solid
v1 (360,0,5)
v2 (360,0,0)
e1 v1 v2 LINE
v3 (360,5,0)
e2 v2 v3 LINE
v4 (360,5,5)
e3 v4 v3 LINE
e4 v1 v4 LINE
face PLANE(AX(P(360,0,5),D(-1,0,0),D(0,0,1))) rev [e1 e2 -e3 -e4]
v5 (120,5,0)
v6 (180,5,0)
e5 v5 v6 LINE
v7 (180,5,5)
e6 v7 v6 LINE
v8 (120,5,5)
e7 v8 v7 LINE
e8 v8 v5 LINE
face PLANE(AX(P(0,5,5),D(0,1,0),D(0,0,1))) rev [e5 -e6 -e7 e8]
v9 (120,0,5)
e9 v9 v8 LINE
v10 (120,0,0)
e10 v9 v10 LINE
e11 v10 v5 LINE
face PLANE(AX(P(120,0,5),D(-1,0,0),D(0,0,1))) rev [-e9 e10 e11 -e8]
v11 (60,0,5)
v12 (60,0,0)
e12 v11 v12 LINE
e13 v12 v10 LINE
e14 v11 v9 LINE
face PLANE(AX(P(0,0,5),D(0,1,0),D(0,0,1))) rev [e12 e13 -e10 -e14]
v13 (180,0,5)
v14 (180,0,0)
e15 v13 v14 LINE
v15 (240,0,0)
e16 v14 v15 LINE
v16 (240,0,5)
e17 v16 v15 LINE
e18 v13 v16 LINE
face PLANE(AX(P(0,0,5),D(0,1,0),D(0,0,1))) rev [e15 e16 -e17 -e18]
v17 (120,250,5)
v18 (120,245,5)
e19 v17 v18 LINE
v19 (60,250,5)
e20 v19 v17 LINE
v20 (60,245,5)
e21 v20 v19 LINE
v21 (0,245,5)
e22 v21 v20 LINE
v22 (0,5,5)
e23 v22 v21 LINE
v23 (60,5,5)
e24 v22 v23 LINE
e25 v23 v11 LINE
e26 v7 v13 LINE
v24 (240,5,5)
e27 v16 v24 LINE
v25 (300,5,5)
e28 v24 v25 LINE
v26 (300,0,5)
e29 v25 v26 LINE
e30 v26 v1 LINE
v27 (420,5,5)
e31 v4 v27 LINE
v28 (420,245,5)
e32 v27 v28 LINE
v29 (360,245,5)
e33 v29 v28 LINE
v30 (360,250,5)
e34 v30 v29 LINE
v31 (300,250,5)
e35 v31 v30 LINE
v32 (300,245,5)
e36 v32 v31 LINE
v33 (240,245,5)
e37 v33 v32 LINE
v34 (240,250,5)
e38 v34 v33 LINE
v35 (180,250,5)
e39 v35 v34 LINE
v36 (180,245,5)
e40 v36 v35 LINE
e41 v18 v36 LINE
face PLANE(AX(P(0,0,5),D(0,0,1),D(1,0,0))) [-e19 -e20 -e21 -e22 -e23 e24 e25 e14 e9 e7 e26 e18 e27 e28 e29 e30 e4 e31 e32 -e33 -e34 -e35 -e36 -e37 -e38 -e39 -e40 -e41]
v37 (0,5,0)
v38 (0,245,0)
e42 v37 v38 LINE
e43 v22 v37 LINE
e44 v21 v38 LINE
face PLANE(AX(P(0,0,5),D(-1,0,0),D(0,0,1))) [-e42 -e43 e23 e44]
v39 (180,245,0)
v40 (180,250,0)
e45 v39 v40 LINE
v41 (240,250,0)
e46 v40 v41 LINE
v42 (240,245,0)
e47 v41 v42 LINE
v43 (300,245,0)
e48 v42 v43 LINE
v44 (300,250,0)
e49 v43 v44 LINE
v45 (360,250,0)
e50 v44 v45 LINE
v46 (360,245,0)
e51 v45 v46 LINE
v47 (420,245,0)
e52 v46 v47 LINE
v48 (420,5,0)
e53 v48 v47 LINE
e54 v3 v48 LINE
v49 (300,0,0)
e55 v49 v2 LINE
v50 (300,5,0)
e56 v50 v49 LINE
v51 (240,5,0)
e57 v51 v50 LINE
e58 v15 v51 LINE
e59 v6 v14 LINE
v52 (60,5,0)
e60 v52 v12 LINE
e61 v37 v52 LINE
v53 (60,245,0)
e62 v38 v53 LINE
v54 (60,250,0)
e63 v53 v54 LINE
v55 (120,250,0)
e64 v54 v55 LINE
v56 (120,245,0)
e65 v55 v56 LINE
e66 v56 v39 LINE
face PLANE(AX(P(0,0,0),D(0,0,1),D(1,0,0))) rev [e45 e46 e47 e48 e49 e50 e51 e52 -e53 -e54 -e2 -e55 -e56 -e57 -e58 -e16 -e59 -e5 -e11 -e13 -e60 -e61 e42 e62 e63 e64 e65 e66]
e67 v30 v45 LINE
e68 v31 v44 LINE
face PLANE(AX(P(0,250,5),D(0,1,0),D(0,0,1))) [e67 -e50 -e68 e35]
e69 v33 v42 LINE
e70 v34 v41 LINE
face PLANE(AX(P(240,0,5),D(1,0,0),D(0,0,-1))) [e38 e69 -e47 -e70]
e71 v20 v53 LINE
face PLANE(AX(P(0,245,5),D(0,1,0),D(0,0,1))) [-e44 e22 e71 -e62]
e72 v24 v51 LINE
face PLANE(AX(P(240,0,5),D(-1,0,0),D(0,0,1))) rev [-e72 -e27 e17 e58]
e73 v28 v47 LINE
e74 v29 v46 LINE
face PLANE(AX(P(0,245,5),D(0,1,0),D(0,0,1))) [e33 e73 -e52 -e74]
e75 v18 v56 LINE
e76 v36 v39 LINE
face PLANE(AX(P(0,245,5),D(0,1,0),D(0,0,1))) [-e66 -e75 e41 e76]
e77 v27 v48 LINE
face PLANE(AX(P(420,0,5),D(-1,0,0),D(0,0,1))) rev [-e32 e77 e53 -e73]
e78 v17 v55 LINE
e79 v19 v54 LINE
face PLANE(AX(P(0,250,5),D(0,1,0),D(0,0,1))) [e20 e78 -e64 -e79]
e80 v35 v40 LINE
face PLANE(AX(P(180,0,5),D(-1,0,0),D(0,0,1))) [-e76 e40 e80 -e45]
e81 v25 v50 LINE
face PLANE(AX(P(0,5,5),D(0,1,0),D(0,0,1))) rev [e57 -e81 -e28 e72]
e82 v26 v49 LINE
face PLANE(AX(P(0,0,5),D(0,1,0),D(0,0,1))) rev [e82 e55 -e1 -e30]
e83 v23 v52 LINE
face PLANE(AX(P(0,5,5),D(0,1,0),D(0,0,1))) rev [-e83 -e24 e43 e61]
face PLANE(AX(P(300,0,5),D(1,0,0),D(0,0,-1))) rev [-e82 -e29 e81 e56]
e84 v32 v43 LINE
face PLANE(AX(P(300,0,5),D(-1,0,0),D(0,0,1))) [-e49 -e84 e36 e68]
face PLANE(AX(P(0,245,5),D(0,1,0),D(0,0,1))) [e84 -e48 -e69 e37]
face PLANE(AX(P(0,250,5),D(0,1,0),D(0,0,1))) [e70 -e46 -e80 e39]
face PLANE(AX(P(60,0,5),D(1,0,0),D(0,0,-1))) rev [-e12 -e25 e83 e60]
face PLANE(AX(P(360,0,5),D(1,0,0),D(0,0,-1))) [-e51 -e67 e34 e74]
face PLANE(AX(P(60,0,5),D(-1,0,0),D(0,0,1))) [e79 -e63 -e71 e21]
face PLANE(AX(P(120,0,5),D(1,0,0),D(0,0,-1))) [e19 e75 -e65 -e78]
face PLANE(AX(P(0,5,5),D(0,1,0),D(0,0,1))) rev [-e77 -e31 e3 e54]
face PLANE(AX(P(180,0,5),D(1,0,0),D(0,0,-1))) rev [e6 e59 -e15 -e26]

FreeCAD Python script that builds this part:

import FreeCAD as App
import Part
import Sketcher
Q = App.Units.Quantity


def add_polygon(sketch, points):
    """Adds a closed chain of lines whose ends are joined by coincident constraints."""
    first, n = sketch.GeometryCount, len(points)
    for a, b in zip(points, points[1:] + points[:1]):
        sketch.addGeometry(Part.LineSegment(App.Vector(*a, 0), App.Vector(*b, 0)), False)
    for i in range(n):
        sketch.addConstraint(Sketcher.Constraint("Coincident", first + i, 2, first + (i + 1) % n, 1))

doc = App.newDocument("Part")
body = doc.addObject("PartDesign::Body", "Body")

# Sketch on XY plane
sketch1 = body.newObject("Sketcher::SketchObject", "Sketch")
sketch1.AttachmentSupport = (doc.getObject("XY_Plane"), [""])
sketch1.MapMode = "FlatFace"
add_polygon(sketch1, [(360, 0), (360, 5), (420, 5), (420, 245), (360, 245), (360, 250), (300, 250), (300, 245), (240, 245), (240, 250), (180, 250), (180, 245), (120, 245), (120, 250), (60, 250), (60, 245), (0, 245), (0, 5), (60, 5), (60, 0), (120, 0), (120, 5), (180, 5), (180, 0), (240, 0), (240, 5), (300, 5), (300, 0)])  # lines 0-27
sketch1.addConstraint(Sketcher.Constraint("Vertical", 0))
sketch1.addConstraint(Sketcher.Constraint("Horizontal", 1))
sketch1.addConstraint(Sketcher.Constraint("Vertical", 2))
sketch1.addConstraint(Sketcher.Constraint("Horizontal", 3))
sketch1.addConstraint(Sketcher.Constraint("Vertical", 4))
sketch1.addConstraint(Sketcher.Constraint("Horizontal", 5))
sketch1.addConstraint(Sketcher.Constraint("Vertical", 6))
sketch1.addConstraint(Sketcher.Constraint("Horizontal", 7))
sketch1.addConstraint(Sketcher.Constraint("Vertical", 8))
sketch1.addConstraint(Sketcher.Constraint("Horizontal", 9))
sketch1.addConstraint(Sketcher.Constraint("Vertical", 10))
sketch1.addConstraint(Sketcher.Constraint("Horizontal", 11))
sketch1.addConstraint(Sketcher.Constraint("Vertical", 12))
sketch1.addConstraint(Sketcher.Constraint("Horizontal", 13))
sketch1.addConstraint(Sketcher.Constraint("Vertical", 14))
sketch1.addConstraint(Sketcher.Constraint("Horizontal", 15))
sketch1.addConstraint(Sketcher.Constraint("Vertical", 16))
sketch1.addConstraint(Sketcher.Constraint("Horizontal", 17))
sketch1.addConstraint(Sketcher.Constraint("Vertical", 18))
sketch1.addConstraint(Sketcher.Constraint("Horizontal", 19))
sketch1.addConstraint(Sketcher.Constraint("Vertical", 20))
sketch1.addConstraint(Sketcher.Constraint("Horizontal", 21))
sketch1.addConstraint(Sketcher.Constraint("Vertical", 22))
sketch1.addConstraint(Sketcher.Constraint("Horizontal", 23))
sketch1.addConstraint(Sketcher.Constraint("Vertical", 24))
sketch1.addConstraint(Sketcher.Constraint("Horizontal", 25))
sketch1.addConstraint(Sketcher.Constraint("Vertical", 26))
sketch1.addConstraint(Sketcher.Constraint("Horizontal", 27))
sketch1.addConstraint(Sketcher.Constraint("PointOnObject", 15, 2, -2))
sketch1.addConstraint(Sketcher.Constraint("PointOnObject", 18, 2, -1))
sketch1.addConstraint(Sketcher.Constraint("PointOnObject", 22, 2, -1))
sketch1.addConstraint(Sketcher.Constraint("PointOnObject", 26, 2, -1))
sketch1.addConstraint(Sketcher.Constraint("Horizontal", 3, 2, 6, 2))
sketch1.addConstraint(Sketcher.Constraint("Horizontal", 5, 2, 8, 2))
sketch1.addConstraint(Sketcher.Constraint("Horizontal", 7, 2, 10, 2))
sketch1.addConstraint(Sketcher.Constraint("Horizontal", 9, 2, 12, 2))
sketch1.addConstraint(Sketcher.Constraint("Horizontal", 11, 2, 14, 2))
sketch1.addConstraint(Sketcher.Constraint("Horizontal", 1, 2, 16, 2))
sketch1.addConstraint(Sketcher.Constraint("Horizontal", 17, 2, 20, 2))
sketch1.addConstraint(Sketcher.Constraint("Horizontal", 21, 2, 24, 2))
sketch1.addConstraint(Sketcher.Constraint("Vertical", 0, 2, 3, 2))
sketch1.addConstraint(Sketcher.Constraint("Vertical", 14, 2, 17, 2))
sketch1.addConstraint(Sketcher.Constraint("Vertical", 12, 2, 19, 2))
sketch1.addConstraint(Sketcher.Constraint("Vertical", 10, 2, 21, 2))
sketch1.addConstraint(Sketcher.Constraint("Vertical", 8, 2, 23, 2))
sketch1.addConstraint(Sketcher.Constraint("Vertical", 6, 2, 25, 2))
sketch1.addConstraint(Sketcher.Constraint("Equal", 3, 5))
sketch1.addConstraint(Sketcher.Constraint("Equal", 5, 7))
sketch1.addConstraint(Sketcher.Constraint("Equal", 7, 9))
sketch1.addConstraint(Sketcher.Constraint("Equal", 9, 11))
sketch1.addConstraint(Sketcher.Constraint("Equal", 11, 13))
sketch1.addConstraint(Sketcher.Constraint("Equal", 13, 15))
sketch1.addConstraint(Sketcher.Constraint("Equal", 0, 4))
sketch1.addConstraint(Sketcher.Constraint("DistanceX", 1, 1, 1, 2, Q("60 mm")))
sketch1.addConstraint(Sketcher.Constraint("DistanceY", 0, 1, 0, 2, Q("5 mm")))
sketch1.addConstraint(Sketcher.Constraint("DistanceY", 2, 1, 2, 2, Q("240 mm")))
pad1 = body.newObject("PartDesign::Pad", "Pad")
pad1.Profile = sketch1
pad1.Length = 5

doc.recompute()
